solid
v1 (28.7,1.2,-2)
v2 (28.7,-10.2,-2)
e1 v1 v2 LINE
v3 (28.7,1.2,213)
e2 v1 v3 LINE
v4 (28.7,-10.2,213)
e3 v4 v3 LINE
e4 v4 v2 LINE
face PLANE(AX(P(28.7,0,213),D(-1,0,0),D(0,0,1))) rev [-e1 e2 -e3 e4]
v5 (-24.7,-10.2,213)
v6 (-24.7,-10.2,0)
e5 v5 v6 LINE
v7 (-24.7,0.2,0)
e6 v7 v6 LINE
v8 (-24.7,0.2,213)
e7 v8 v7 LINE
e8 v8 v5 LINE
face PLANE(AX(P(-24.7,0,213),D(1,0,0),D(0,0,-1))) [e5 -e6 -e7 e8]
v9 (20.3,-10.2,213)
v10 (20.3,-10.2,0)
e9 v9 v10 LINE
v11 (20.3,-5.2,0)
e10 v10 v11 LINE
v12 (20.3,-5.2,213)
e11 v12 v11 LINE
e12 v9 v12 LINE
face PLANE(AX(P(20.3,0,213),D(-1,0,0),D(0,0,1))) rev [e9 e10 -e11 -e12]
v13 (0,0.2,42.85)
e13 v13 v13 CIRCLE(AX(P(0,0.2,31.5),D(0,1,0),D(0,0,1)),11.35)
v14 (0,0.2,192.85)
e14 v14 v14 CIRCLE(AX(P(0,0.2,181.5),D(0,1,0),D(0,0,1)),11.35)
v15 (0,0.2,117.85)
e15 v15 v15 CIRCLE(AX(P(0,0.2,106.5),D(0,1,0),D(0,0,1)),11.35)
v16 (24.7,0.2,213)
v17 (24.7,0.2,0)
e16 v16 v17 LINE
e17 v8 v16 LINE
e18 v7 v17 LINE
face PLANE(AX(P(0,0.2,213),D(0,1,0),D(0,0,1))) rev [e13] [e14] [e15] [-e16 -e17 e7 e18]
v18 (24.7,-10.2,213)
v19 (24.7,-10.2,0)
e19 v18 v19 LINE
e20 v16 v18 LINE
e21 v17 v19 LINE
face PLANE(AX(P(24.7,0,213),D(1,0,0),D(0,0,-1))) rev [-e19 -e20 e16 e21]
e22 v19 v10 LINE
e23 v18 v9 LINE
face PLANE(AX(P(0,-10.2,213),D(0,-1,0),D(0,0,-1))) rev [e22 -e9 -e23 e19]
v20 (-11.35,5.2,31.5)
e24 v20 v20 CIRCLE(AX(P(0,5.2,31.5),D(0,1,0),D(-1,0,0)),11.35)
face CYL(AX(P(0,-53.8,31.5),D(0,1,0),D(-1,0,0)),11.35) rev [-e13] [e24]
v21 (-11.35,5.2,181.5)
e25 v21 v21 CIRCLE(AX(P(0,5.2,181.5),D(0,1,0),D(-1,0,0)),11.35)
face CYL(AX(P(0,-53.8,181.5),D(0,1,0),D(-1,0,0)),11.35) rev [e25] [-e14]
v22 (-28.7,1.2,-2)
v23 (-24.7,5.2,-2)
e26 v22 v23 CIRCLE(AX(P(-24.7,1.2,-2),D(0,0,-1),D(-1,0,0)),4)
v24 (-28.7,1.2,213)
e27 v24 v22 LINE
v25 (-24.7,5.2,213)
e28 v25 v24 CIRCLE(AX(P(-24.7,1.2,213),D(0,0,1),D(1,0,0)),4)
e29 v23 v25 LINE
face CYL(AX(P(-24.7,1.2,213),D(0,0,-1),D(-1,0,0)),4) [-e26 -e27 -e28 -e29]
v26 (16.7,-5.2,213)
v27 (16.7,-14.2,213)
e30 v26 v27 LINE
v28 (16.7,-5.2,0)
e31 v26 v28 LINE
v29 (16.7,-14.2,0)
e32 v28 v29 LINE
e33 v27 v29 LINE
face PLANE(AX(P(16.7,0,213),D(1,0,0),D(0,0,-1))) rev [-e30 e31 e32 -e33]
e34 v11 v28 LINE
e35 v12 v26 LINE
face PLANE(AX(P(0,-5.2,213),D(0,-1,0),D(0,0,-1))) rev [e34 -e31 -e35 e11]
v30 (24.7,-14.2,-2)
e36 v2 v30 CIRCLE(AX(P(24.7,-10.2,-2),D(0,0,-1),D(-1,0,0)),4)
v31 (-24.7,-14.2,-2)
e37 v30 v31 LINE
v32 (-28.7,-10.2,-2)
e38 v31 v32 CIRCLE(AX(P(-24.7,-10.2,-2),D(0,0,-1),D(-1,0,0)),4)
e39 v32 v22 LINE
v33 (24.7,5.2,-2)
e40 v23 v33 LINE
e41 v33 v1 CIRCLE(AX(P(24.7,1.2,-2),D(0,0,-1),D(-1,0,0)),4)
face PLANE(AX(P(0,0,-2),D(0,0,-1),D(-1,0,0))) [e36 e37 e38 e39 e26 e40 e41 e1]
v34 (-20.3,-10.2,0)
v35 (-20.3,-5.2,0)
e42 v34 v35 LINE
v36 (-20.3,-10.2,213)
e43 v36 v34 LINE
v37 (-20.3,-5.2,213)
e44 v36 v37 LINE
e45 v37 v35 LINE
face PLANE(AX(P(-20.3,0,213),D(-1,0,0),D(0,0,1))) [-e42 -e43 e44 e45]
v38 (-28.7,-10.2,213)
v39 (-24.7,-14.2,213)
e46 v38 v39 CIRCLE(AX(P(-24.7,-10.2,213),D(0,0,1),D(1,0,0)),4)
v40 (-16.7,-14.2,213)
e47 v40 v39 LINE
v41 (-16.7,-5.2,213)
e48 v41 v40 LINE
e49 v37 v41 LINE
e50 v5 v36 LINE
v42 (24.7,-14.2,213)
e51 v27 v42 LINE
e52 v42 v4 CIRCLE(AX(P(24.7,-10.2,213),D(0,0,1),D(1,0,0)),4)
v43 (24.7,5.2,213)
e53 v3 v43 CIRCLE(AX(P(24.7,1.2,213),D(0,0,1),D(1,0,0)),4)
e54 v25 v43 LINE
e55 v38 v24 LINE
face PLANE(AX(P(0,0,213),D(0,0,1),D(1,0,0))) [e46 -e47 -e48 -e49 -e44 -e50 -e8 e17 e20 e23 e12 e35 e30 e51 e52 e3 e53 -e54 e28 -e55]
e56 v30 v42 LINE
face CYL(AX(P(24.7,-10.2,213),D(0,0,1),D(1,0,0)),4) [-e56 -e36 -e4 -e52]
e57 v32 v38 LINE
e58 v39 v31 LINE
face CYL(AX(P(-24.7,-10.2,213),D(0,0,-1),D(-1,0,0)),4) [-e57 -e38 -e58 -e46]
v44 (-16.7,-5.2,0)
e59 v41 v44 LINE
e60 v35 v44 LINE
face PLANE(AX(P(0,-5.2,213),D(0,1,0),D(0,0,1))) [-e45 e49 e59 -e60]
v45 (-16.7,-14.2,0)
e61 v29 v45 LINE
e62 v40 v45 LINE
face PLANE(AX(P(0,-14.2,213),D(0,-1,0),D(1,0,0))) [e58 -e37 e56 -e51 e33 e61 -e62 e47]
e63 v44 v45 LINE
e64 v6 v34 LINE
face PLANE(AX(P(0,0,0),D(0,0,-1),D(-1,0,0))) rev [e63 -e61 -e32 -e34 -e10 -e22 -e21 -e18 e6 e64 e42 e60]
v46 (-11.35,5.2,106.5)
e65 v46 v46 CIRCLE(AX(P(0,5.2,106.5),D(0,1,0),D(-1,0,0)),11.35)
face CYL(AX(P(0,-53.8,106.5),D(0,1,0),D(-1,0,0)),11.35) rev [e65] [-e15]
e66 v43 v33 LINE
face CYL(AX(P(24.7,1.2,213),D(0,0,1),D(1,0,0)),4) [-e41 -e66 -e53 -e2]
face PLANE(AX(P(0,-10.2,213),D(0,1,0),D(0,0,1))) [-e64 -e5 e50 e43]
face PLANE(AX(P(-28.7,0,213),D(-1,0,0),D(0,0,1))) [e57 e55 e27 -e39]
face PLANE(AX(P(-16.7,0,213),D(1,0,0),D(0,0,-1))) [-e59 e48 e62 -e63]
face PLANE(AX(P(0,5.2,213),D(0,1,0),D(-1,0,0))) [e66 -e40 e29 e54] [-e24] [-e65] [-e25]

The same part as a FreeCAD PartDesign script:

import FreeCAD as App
import Part
import Sketcher


def edges_at(feature, points):
    """Names of the edges that pass closest to the given points."""
    edges = feature.Shape.Edges
    near = lambda p: min(range(len(edges)), key=lambda i: edges[i].distToShape(Part.Vertex(*p))[0])
    return sorted({f"Edge{near(p) + 1}" for p in points})

doc = App.newDocument("Part")
body = doc.addObject("PartDesign::Body", "Body")

sketch1 = body.newObject("Sketcher::SketchObject", "Sketch")
sketch1.AttachmentSupport = (doc.getObject("XY_Plane"), [""])
sketch1.MapMode = "FlatFace"
sketch1.addGeometry([
    Part.LineSegment(App.Vector(-24.7, 0.2, 0), App.Vector(24.7, 0.2, 0)),
    Part.LineSegment(App.Vector(24.7, 0.2, 0), App.Vector(24.7, -10.2, 0)),
    Part.LineSegment(App.Vector(24.7, -10.2, 0), App.Vector(20.3, -10.2, 0)),
    Part.LineSegment(App.Vector(20.3, -10.2, 0), App.Vector(20.3, -5.2, 0)),
    Part.LineSegment(App.Vector(20.3, -5.2, 0), App.Vector(16.7, -5.2, 0)),
    Part.LineSegment(App.Vector(16.7, -5.2, 0), App.Vector(16.7, -14.2, 0)),
    Part.LineSegment(App.Vector(16.7, -14.2, 0), App.Vector(28.7, -14.2, 0)),
    Part.LineSegment(App.Vector(28.7, -14.2, 0), App.Vector(28.7, 5.2, 0)),
    Part.LineSegment(App.Vector(28.7, 5.2, 0), App.Vector(-28.7, 5.2, 0)),
    Part.LineSegment(App.Vector(-28.7, 5.2, 0), App.Vector(-28.7, -14.2, 0)),
    Part.LineSegment(App.Vector(-28.7, -14.2, 0), App.Vector(-16.7, -14.2, 0)),
    Part.LineSegment(App.Vector(-16.7, -14.2, 0), App.Vector(-16.7, -5.2, 0)),
    Part.LineSegment(App.Vector(-16.7, -5.2, 0), App.Vector(-20.3, -5.2, 0)),
    Part.LineSegment(App.Vector(-20.3, -5.2, 0), App.Vector(-20.3, -10.2, 0)),
    Part.LineSegment(App.Vector(-20.3, -10.2, 0), App.Vector(-24.7, -10.2, 0)),
    Part.LineSegment(App.Vector(-24.7, -10.2, 0), App.Vector(-24.7, 0.2, 0)),
], False)
sketch1.addConstraint([
    Sketcher.Constraint("Coincident", 0, 2, 1, 1),
    Sketcher.Constraint("Coincident", 1, 2, 2, 1),
    Sketcher.Constraint("Coincident", 2, 2, 3, 1),
    Sketcher.Constraint("Coincident", 3, 2, 4, 1),
    Sketcher.Constraint("Coincident", 4, 2, 5, 1),
    Sketcher.Constraint("Coincident", 5, 2, 6, 1),
    Sketcher.Constraint("Coincident", 6, 2, 7, 1),
    Sketcher.Constraint("Coincident", 7, 2, 8, 1),
    Sketcher.Constraint("Coincident", 8, 2, 9, 1),
    Sketcher.Constraint("Coincident", 9, 2, 10, 1),
    Sketcher.Constraint("Coincident", 10, 2, 11, 1),
    Sketcher.Constraint("Coincident", 11, 2, 12, 1),
    Sketcher.Constraint("Coincident", 12, 2, 13, 1),
    Sketcher.Constraint("Coincident", 13, 2, 14, 1),
    Sketcher.Constraint("Coincident", 14, 2, 15, 1),
    Sketcher.Constraint("Coincident", 15, 2, 0, 1),
    Sketcher.Constraint("Horizontal", 0),
    Sketcher.Constraint("Vertical", 1),
    Sketcher.Constraint("Horizontal", 2),
    Sketcher.Constraint("Vertical", 3),
    Sketcher.Constraint("Horizontal", 4),
    Sketcher.Constraint("Vertical", 5),
    Sketcher.Constraint("Horizontal", 6),
    Sketcher.Constraint("Vertical", 7),
    Sketcher.Constraint("Horizontal", 8),
    Sketcher.Constraint("Vertical", 9),
    Sketcher.Constraint("Horizontal", 10),
    Sketcher.Constraint("Vertical", 11),
    Sketcher.Constraint("Horizontal", 12),
    Sketcher.Constraint("Vertical", 13),
    Sketcher.Constraint("Horizontal", 14),
    Sketcher.Constraint("Vertical", 15),
    Sketcher.Constraint("Symmetric", 6, 2, 9, 2, -2),
    Sketcher.Constraint("Symmetric", 4, 2, 11, 2, -2),
    Sketcher.Constraint("Symmetric", 2, 2, 13, 2, -2),
    Sketcher.Constraint("Equal", 2, 14),
    Sketcher.Constraint("DistanceX", 6, 1, 6, 2, 12.0),
    Sketcher.Constraint("DistanceY", 3, 1, 3, 2, 5.0),
    Sketcher.Constraint("DistanceY", 5, 2, 5, 1, 9.0),
    Sketcher.Constraint("DistanceX", 0, 1, 0, 2, 49.4),
    Sketcher.Constraint("DistanceX", 2, 2, 2, 1, 4.4),
    Sketcher.Constraint("DistanceX", 4, 2, 4, 1, 3.6),
    Sketcher.Constraint("DistanceY", 1, 2, 1, 1, 10.4),
    Sketcher.Constraint("DistanceY", 7, 1, 7, 2, 19.4),
    Sketcher.Constraint("DistanceY", -1, 1, 0, 2, 0.2),
])
pad1 = body.newObject("PartDesign::Pad", "Pad")
pad1.Profile = sketch1
pad1.Length = 213

sketch2 = body.newObject("Sketcher::SketchObject", "Sketch001")
sketch2.AttachmentSupport = (doc.getObject("XY_Plane"), [""])
sketch2.MapMode = "FlatFace"
sketch2.addGeometry([
    Part.LineSegment(App.Vector(29, 5, 0), App.Vector(29, -14, 0)),
    Part.LineSegment(App.Vector(29, -14, 0), App.Vector(-29, -14, 0)),
    Part.LineSegment(App.Vector(-29, -14, 0), App.Vector(-29, 5, 0)),
    Part.LineSegment(App.Vector(-29, 5, 0), App.Vector(29, 5, 0)),
], False)
sketch2.addConstraint([
    Sketcher.Constraint("Coincident", 0, 2, 1, 1),
    Sketcher.Constraint("Coincident", 1, 2, 2, 1),
    Sketcher.Constraint("Coincident", 2, 2, 3, 1),
    Sketcher.Constraint("Coincident", 3, 2, 0, 1),
    Sketcher.Constraint("Vertical", 0),
    Sketcher.Constraint("Horizontal", 1),
    Sketcher.Constraint("Vertical", 2),
    Sketcher.Constraint("Horizontal", 3),
    Sketcher.Constraint("DistanceX", 1, 2, 1, 1, 57.4),
    Sketcher.Constraint("DistanceY", 0, 2, 0, 1, 19.4),
    Sketcher.Constraint("DistanceX", -1, 1, 0, 2, 28.7),
    Sketcher.Constraint("DistanceY", 0, 2, -1, 1, 14.2),
])
pad2 = body.newObject("PartDesign::Pad", "Pad001")
pad2.Profile = sketch2
pad2.Length = 2
pad2.Reversed = True
doc.recompute()

fillet = body.newObject("PartDesign::Fillet", "Fillet")
fillet.Base = (pad2, edges_at(pad2, [
    (-28.7, -14.2, 105.5),
    (-28.7, 5.2, 105.5),
    (28.7, 5.2, 105.5),
    (28.7, -14.2, 105.5),
]))
fillet.Radius = 4

sketch3 = body.newObject("Sketcher::SketchObject", "Sketch002")
sketch3.AttachmentSupport = (doc.getObject("XZ_Plane"), [""])
sketch3.MapMode = "FlatFace"
sketch3.AttachmentOffset = App.Placement(App.Vector(0, 0, -5.2), App.Rotation())
sketch3.addGeometry([
    Part.Circle(App.Vector(0, 32, 0), App.Vector(0, 0, 1), 11),
    Part.Circle(App.Vector(0, 106, 0), App.Vector(0, 0, 1), 11),
    Part.Circle(App.Vector(0, 182, 0), App.Vector(0, 0, 1), 11),
], False)
sketch3.addConstraint([
    Sketcher.Constraint("Equal", 0, 1),
    Sketcher.Constraint("Equal", 1, 2),
    Sketcher.Constraint("PointOnObject", 0, 3, -2),
    Sketcher.Constraint("PointOnObject", 1, 3, -2),
    Sketcher.Constraint("PointOnObject", 2, 3, -2),
    Sketcher.Constraint("Diameter", 0, 22.7),
    Sketcher.Constraint("DistanceY", 0, 3, 1, 3, 75.0),
    Sketcher.Constraint("DistanceY", 1, 3, 2, 3, 75.0),
    Sketcher.Constraint("DistanceY", -1, 1, 0, 3, 31.5),
])
pocket1 = body.newObject("PartDesign::Pocket", "Pocket")
pocket1.Profile = sketch3
pocket1.Length = 59
pocket1.Reversed = True

doc.recompute()
